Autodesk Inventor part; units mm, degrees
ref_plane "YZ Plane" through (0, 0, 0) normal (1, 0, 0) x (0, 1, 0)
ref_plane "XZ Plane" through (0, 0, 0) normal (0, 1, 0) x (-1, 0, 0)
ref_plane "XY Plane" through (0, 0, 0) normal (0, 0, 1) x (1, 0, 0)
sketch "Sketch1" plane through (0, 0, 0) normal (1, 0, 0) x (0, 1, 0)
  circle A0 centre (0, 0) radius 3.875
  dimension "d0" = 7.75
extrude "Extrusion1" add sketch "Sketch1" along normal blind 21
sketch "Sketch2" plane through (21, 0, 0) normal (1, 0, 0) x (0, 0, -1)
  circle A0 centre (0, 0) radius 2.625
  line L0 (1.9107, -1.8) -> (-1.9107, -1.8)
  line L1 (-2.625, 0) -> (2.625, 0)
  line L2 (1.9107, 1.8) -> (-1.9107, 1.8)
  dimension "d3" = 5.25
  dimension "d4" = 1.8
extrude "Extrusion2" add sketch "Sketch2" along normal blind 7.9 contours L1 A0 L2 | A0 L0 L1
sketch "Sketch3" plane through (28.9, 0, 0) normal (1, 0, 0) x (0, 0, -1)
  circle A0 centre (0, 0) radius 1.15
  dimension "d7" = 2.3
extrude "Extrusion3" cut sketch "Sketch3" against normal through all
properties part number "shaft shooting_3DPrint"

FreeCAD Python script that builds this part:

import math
import FreeCAD as App
import Part
import Sketcher

doc = App.newDocument("Part")
body = doc.addObject("PartDesign::Body", "Body")

# Sketch on YZ plane
sketch1 = body.newObject("Sketcher::SketchObject", "Sketch")
sketch1.AttachmentSupport = (doc.getObject("YZ_Plane"), [""])
sketch1.MapMode = "FlatFace"
sketch1.addGeometry(Part.Circle(App.Vector(0, 0, 0), App.Vector(0, 0, 1), 3.9), False)
sketch1.addConstraint([
    Sketcher.Constraint("Coincident", 0, 3, -1, 1),
    Sketcher.Constraint("Diameter", 0, 7.75),
])
pad1 = body.newObject("PartDesign::Pad", "Pad")
pad1.Profile = sketch1
pad1.Length = 21

# Sketch on YZ plane
sketch2 = body.newObject("Sketcher::SketchObject", "Sketch001")
sketch2.AttachmentSupport = (doc.getObject("YZ_Plane"), [""])
sketch2.MapMode = "FlatFace"
sketch2.AttachmentOffset = App.Placement(App.Vector(0, 0, 21), App.Rotation())
sketch2.addGeometry([
    Part.ArcOfCircle(Part.Circle(App.Vector(0, 0, 0), App.Vector(0, 0, 1), 2.6), math.radians(47), math.radians(133)),
    Part.LineSegment(App.Vector(-1.8, 1.9, 0), App.Vector(-1.8, -1.9, 0)),
    Part.ArcOfCircle(Part.Circle(App.Vector(0, 0, 0), App.Vector(0, 0, 1), 2.6), math.radians(-133), math.radians(-47)),
    Part.LineSegment(App.Vector(1.8, -1.9, 0), App.Vector(1.8, 1.9, 0)),
], False)
sketch2.addConstraint([
    Sketcher.Constraint("Coincident", 0, 2, 1, 1),
    Sketcher.Constraint("Coincident", 1, 2, 2, 1),
    Sketcher.Constraint("Coincident", 2, 2, 3, 1),
    Sketcher.Constraint("Coincident", 3, 2, 0, 1),
    Sketcher.Constraint("Vertical", 1),
    Sketcher.Constraint("Vertical", 3),
    Sketcher.Constraint("Coincident", 0, 3, -1, 1),
    Sketcher.Constraint("Coincident", 2, 3, -1, 1),
    Sketcher.Constraint("Equal", 0, 2),
    Sketcher.Constraint("Horizontal", 1, 2, 2, 2),
    Sketcher.Constraint("Radius", 0, 2.625),
    Sketcher.Constraint("DistanceX", 0, 2, -1, 1, 1.8),
])
pad2 = body.newObject("PartDesign::Pad", "Pad001")
pad2.Profile = sketch2
pad2.Length = 7.9

# Sketch on YZ plane
sketch3 = body.newObject("Sketcher::SketchObject", "Sketch002")
sketch3.AttachmentSupport = (doc.getObject("YZ_Plane"), [""])
sketch3.MapMode = "FlatFace"
sketch3.AttachmentOffset = App.Placement(App.Vector(0, 0, 28.9), App.Rotation())
sketch3.addGeometry(Part.Circle(App.Vector(0, 0, 0), App.Vector(0, 0, 1), 1.1), False)
sketch3.addConstraint([
    Sketcher.Constraint("Coincident", 0, 3, -1, 1),
    Sketcher.Constraint("Diameter", 0, 2.3),
])
pocket1 = body.newObject("PartDesign::Pocket", "Pocket")
pocket1.Profile = sketch3
pocket1.Type = "ThroughAll"

doc.recompute()
